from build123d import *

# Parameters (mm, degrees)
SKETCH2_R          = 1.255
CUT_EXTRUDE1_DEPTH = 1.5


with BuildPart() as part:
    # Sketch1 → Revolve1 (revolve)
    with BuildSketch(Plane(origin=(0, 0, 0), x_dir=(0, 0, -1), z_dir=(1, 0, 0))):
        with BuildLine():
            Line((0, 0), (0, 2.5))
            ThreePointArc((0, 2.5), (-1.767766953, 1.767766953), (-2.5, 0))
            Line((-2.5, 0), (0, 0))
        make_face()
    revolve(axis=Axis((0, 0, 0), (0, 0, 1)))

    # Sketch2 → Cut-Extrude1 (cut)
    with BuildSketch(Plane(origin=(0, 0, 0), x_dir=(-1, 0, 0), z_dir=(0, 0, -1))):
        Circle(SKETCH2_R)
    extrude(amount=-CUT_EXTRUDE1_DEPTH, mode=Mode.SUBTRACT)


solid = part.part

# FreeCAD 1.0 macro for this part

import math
import FreeCAD as App
import Part
import Sketcher

V = App.Vector

doc = App.newDocument("Part")
body = doc.addObject("PartDesign::Body", "Body")

# Sketch on YZ plane
sketch1 = body.newObject("Sketcher::SketchObject", "Sketch")
sketch1.AttachmentSupport = (doc.getObject("YZ_Plane"), [""])
sketch1.MapMode = "FlatFace"
sketch1.addGeometry([
    Part.LineSegment(V(0, 0, 0), V(2.5, 0, 0)),
    Part.ArcOfCircle(Part.Circle(V(0, 0, 0), V(0, 0, 1), 2.5), math.radians(0), math.radians(90)),
    Part.LineSegment(V(0, 2.5, 0), V(0, 0, 0)),
], False)
sketch1.addConstraint([
    Sketcher.Constraint("Coincident", 0, 2, 1, 1),
    Sketcher.Constraint("Coincident", 1, 2, 2, 1),
    Sketcher.Constraint("Coincident", 2, 2, 0, 1),
    Sketcher.Constraint("Horizontal", 0),
    Sketcher.Constraint("Vertical", 2),
    Sketcher.Constraint("Coincident", 1, 3, -1, 1),
    Sketcher.Constraint("Coincident", 2, 2, -1, 1),
    Sketcher.Constraint("Radius", 1, 2.5),
])
revolution = body.newObject("PartDesign::Revolution", "Revolution")
revolution.Profile = sketch1
revolution.ReferenceAxis = (sketch1, ["V_Axis"])
revolution.Angle = 360

# Sketch on XY plane
sketch2 = body.newObject("Sketcher::SketchObject", "Sketch001")
sketch2.AttachmentSupport = (doc.getObject("XY_Plane"), [""])
sketch2.MapMode = "FlatFace"
sketch2.addGeometry(Part.Circle(V(0, 0, 0), V(0, 0, 1), 1.3), False)
sketch2.addConstraint([
    Sketcher.Constraint("Coincident", 0, 3, -1, 1),
    Sketcher.Constraint("Diameter", 0, 2.51),
])
pocket1 = body.newObject("PartDesign::Pocket", "Pocket")
pocket1.Profile = sketch2
pocket1.Length = 1.5
pocket1.Reversed = True

doc.recompute()
